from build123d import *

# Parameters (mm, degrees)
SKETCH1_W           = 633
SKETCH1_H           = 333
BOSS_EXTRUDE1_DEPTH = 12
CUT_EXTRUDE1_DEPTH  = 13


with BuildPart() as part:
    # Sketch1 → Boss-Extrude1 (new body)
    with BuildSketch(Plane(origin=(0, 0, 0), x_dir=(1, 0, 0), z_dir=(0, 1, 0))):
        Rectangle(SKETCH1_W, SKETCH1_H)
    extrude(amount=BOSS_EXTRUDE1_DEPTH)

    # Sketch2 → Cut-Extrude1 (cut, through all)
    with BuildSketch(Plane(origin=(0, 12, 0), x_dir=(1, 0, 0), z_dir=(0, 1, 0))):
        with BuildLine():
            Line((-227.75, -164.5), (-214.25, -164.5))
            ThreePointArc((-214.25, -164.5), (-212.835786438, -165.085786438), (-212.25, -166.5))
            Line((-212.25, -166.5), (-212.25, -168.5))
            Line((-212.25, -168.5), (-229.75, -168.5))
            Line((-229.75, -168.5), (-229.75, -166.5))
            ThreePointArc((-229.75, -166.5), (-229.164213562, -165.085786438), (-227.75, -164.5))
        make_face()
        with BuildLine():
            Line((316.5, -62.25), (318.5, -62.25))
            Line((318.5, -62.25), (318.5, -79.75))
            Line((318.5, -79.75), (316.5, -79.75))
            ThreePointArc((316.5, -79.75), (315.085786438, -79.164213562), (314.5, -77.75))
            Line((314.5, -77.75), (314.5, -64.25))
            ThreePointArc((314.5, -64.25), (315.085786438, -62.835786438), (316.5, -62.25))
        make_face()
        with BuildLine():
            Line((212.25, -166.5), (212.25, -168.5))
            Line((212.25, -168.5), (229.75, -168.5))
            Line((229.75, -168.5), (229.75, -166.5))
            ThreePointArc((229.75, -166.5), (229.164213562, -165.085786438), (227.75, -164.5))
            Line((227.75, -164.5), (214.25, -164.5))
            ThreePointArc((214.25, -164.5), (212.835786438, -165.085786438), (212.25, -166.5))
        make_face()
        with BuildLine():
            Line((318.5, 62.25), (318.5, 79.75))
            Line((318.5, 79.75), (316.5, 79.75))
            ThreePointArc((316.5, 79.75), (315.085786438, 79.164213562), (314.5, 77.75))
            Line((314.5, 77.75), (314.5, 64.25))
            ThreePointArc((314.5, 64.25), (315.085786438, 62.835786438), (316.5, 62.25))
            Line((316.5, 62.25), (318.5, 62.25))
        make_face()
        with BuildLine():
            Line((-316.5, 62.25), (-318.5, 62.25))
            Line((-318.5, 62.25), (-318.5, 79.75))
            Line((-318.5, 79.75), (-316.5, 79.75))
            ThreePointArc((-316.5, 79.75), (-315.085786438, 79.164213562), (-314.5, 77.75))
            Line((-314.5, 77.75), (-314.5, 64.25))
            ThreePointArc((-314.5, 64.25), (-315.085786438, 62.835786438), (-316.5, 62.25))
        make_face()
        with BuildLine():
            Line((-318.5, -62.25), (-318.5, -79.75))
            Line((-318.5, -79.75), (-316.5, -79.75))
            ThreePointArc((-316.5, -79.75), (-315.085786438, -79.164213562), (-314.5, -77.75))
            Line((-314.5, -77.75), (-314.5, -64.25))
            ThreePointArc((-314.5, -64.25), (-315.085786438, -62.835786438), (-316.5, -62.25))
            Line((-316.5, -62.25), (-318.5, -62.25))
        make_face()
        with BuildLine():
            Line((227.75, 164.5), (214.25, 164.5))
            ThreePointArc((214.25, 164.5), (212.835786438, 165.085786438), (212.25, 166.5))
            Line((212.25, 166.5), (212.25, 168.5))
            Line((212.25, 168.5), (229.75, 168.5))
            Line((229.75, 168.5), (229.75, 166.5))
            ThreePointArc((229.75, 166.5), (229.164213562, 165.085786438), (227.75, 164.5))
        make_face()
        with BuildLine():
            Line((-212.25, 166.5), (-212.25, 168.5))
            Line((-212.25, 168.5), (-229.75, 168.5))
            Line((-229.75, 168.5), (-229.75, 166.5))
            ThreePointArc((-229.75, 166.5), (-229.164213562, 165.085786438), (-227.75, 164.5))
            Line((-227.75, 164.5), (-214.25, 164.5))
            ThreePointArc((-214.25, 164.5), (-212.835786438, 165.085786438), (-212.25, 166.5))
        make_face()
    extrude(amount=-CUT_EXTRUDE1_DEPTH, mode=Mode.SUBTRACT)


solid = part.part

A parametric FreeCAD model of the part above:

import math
import FreeCAD as App
import Part
import Sketcher
from FreeCAD import Vector

doc = App.newDocument("Part")
body = doc.addObject("PartDesign::Body", "Body")

# Sketch on XZ plane
sketch1 = body.newObject("Sketcher::SketchObject", "Sketch")
sketch1.AttachmentSupport = (doc.getObject("XZ_Plane"), [""])
sketch1.MapMode = "FlatFace"
sketch1.addGeometry([
    Part.LineSegment(Vector(-316, -166, 0), Vector(-316, 166, 0)),
    Part.LineSegment(Vector(-316, 166, 0), Vector(316, 166, 0)),
    Part.LineSegment(Vector(316, 166, 0), Vector(316, -166, 0)),
    Part.LineSegment(Vector(316, -166, 0), Vector(-316, -166, 0)),
], False)
sketch1.addConstraint([
    Sketcher.Constraint("Coincident", 0, 2, 1, 1),
    Sketcher.Constraint("Coincident", 1, 2, 2, 1),
    Sketcher.Constraint("Coincident", 2, 2, 3, 1),
    Sketcher.Constraint("Coincident", 3, 2, 0, 1),
    Sketcher.Constraint("Vertical", 0),
    Sketcher.Constraint("Horizontal", 1),
    Sketcher.Constraint("Vertical", 2),
    Sketcher.Constraint("Horizontal", 3),
    Sketcher.Constraint("Symmetric", 0, 2, 2, 2, -1, 1),
    Sketcher.Constraint("DistanceX", 1, 1, 1, 2, 633.0),
    Sketcher.Constraint("DistanceY", 0, 1, 0, 2, 333.0),
])
pad1 = body.newObject("PartDesign::Pad", "Pad")
pad1.Profile = sketch1
pad1.Length = 12
pad1.Reversed = True

# Sketch on XZ plane
sketch2 = body.newObject("Sketcher::SketchObject", "Sketch001")
sketch2.AttachmentSupport = (doc.getObject("XZ_Plane"), [""])
sketch2.MapMode = "FlatFace"
sketch2.AttachmentOffset = App.Placement(Vector(0, 0, -12), App.Rotation())
sketch2.addGeometry([
    Part.LineSegment(Vector(-214.2, 164.5, 0), Vector(-227.8, 164.5, 0)),  # 0
    Part.ArcOfCircle(Part.Circle(Vector(-227.7, 166.5, 0), Vector(0, 0, 1), 2), math.radians(-180), math.radians(-90)),  # 1
    Part.LineSegment(Vector(-229.8, 166.5, 0), Vector(-229.8, 168.5, 0)),  # 2
    Part.LineSegment(Vector(-229.8, 168.5, 0), Vector(-212.2, 168.5, 0)),  # 3
    Part.LineSegment(Vector(-212.2, 168.5, 0), Vector(-212.2, 166.5, 0)),  # 4
    Part.ArcOfCircle(Part.Circle(Vector(-214.3, 166.5, 0), Vector(0, 0, 1), 2), math.radians(-90), math.radians(0)),  # 5
    Part.LineSegment(Vector(318.5, 62.2, 0), Vector(316.5, 62.2, 0)),  # 6
    Part.ArcOfCircle(Part.Circle(Vector(316.5, 64.3, 0), Vector(0, 0, 1), 2), math.radians(-180), math.radians(-90)),  # 7
    Part.LineSegment(Vector(314.5, 64.2, 0), Vector(314.5, 77.8, 0)),  # 8
    Part.ArcOfCircle(Part.Circle(Vector(316.5, 77.7, 0), Vector(0, 0, 1), 2), math.radians(90), math.radians(180)),  # 9
    Part.LineSegment(Vector(316.5, 79.8, 0), Vector(318.5, 79.8, 0)),  # 10
    Part.LineSegment(Vector(318.5, 79.8, 0), Vector(318.5, 62.2, 0)),  # 11
    Part.LineSegment(Vector(212.2, 166.5, 0), Vector(212.2, 168.5, 0)),  # 12
    Part.LineSegment(Vector(212.2, 168.5, 0), Vector(229.8, 168.5, 0)),  # 13
    Part.LineSegment(Vector(229.8, 168.5, 0), Vector(229.8, 166.5, 0)),  # 14
    Part.ArcOfCircle(Part.Circle(Vector(227.7, 166.5, 0), Vector(0, 0, 1), 2), math.radians(-90), math.radians(0)),  # 15
    Part.LineSegment(Vector(227.8, 164.5, 0), Vector(214.2, 164.5, 0)),  # 16
    Part.ArcOfCircle(Part.Circle(Vector(214.3, 166.5, 0), Vector(0, 0, 1), 2), math.radians(-180), math.radians(-90)),  # 17
    Part.LineSegment(Vector(318.5, -62.2, 0), Vector(318.5, -79.8, 0)),  # 18
    Part.LineSegment(Vector(318.5, -79.8, 0), Vector(316.5, -79.8, 0)),  # 19
    Part.ArcOfCircle(Part.Circle(Vector(316.5, -77.7, 0), Vector(0, 0, 1), 2), math.radians(-180), math.radians(-90)),  # 20
    Part.LineSegment(Vector(314.5, -77.8, 0), Vector(314.5, -64.2, 0)),  # 21
    Part.ArcOfCircle(Part.Circle(Vector(316.5, -64.3, 0), Vector(0, 0, 1), 2), math.radians(90), math.radians(180)),  # 22
    Part.LineSegment(Vector(316.5, -62.2, 0), Vector(318.5, -62.2, 0)),  # 23
    Part.LineSegment(Vector(-318.5, -62.2, 0), Vector(-316.5, -62.2, 0)),  # 24
    Part.ArcOfCircle(Part.Circle(Vector(-316.5, -64.3, 0), Vector(0, 0, 1), 2), math.radians(0), math.radians(90)),  # 25
    Part.LineSegment(Vector(-314.5, -64.2, 0), Vector(-314.5, -77.8, 0)),  # 26
    Part.ArcOfCircle(Part.Circle(Vector(-316.5, -77.7, 0), Vector(0, 0, 1), 2), math.radians(-90), math.radians(0)),  # 27
    Part.LineSegment(Vector(-316.5, -79.8, 0), Vector(-318.5, -79.8, 0)),  # 28
    Part.LineSegment(Vector(-318.5, -79.8, 0), Vector(-318.5, -62.2, 0)),  # 29
    Part.LineSegment(Vector(-318.5, 62.2, 0), Vector(-318.5, 79.8, 0)),  # 30
    Part.LineSegment(Vector(-318.5, 79.8, 0), Vector(-316.5, 79.8, 0)),  # 31
    Part.ArcOfCircle(Part.Circle(Vector(-316.5, 77.7, 0), Vector(0, 0, 1), 2), math.radians(0), math.radians(90)),  # 32
    Part.LineSegment(Vector(-314.5, 77.8, 0), Vector(-314.5, 64.2, 0)),  # 33
    Part.ArcOfCircle(Part.Circle(Vector(-316.5, 64.3, 0), Vector(0, 0, 1), 2), math.radians(-90), math.radians(0)),  # 34
    Part.LineSegment(Vector(-316.5, 62.2, 0), Vector(-318.5, 62.2, 0)),  # 35
    Part.LineSegment(Vector(214.2, -164.5, 0), Vector(227.8, -164.5, 0)),  # 36
    Part.ArcOfCircle(Part.Circle(Vector(227.7, -166.5, 0), Vector(0, 0, 1), 2), math.radians(0), math.radians(90)),  # 37
    Part.LineSegment(Vector(229.8, -166.5, 0), Vector(229.8, -168.5, 0)),  # 38
    Part.LineSegment(Vector(229.8, -168.5, 0), Vector(212.2, -168.5, 0)),  # 39
    Part.LineSegment(Vector(212.2, -168.5, 0), Vector(212.2, -166.5, 0)),  # 40
    Part.ArcOfCircle(Part.Circle(Vector(214.3, -166.5, 0), Vector(0, 0, 1), 2), math.radians(90), math.radians(180)),  # 41
    Part.LineSegment(Vector(-212.2, -166.5, 0), Vector(-212.2, -168.5, 0)),  # 42
    Part.LineSegment(Vector(-212.2, -168.5, 0), Vector(-229.8, -168.5, 0)),  # 43
    Part.LineSegment(Vector(-229.8, -168.5, 0), Vector(-229.8, -166.5, 0)),  # 44
    Part.ArcOfCircle(Part.Circle(Vector(-227.7, -166.5, 0), Vector(0, 0, 1), 2), math.radians(90), math.radians(180)),  # 45
    Part.LineSegment(Vector(-227.8, -164.5, 0), Vector(-214.2, -164.5, 0)),  # 46
    Part.ArcOfCircle(Part.Circle(Vector(-214.3, -166.5, 0), Vector(0, 0, 1), 2), math.radians(0), math.radians(90)),  # 47
], False)
sketch2.addConstraint([
    Sketcher.Constraint("Tangent", 0, 2, 1, 2),
    Sketcher.Constraint("Tangent", 1, 1, 2, 1),
    Sketcher.Constraint("Coincident", 2, 2, 3, 1),
    Sketcher.Constraint("Coincident", 3, 2, 4, 1),
    Sketcher.Constraint("Tangent", 4, 2, 5, 2),
    Sketcher.Constraint("Tangent", 5, 1, 0, 1),
    Sketcher.Constraint("Tangent", 6, 2, 7, 2),
    Sketcher.Constraint("Tangent", 7, 1, 8, 1),
    Sketcher.Constraint("Tangent", 8, 2, 9, 2),
    Sketcher.Constraint("Tangent", 9, 1, 10, 1),
    Sketcher.Constraint("Coincident", 10, 2, 11, 1),
    Sketcher.Constraint("Coincident", 11, 2, 6, 1),
    Sketcher.Constraint("Coincident", 12, 2, 13, 1),
    Sketcher.Constraint("Coincident", 13, 2, 14, 1),
    Sketcher.Constraint("Tangent", 14, 2, 15, 2),
    Sketcher.Constraint("Tangent", 15, 1, 16, 1),
    Sketcher.Constraint("Tangent", 16, 2, 17, 2),
    Sketcher.Constraint("Tangent", 17, 1, 12, 1),
    Sketcher.Constraint("Coincident", 18, 2, 19, 1),
    Sketcher.Constraint("Tangent", 19, 2, 20, 2),
    Sketcher.Constraint("Tangent", 20, 1, 21, 1),
    Sketcher.Constraint("Tangent", 21, 2, 22, 2),
    Sketcher.Constraint("Tangent", 22, 1, 23, 1),
    Sketcher.Constraint("Coincident", 23, 2, 18, 1),
    Sketcher.Constraint("Tangent", 24, 2, 25, 2),
    Sketcher.Constraint("Tangent", 25, 1, 26, 1),
    Sketcher.Constraint("Tangent", 26, 2, 27, 2),
    Sketcher.Constraint("Tangent", 27, 1, 28, 1),
    Sketcher.Constraint("Coincident", 28, 2, 29, 1),
    Sketcher.Constraint("Coincident", 29, 2, 24, 1),
    Sketcher.Constraint("Coincident", 30, 2, 31, 1),
    Sketcher.Constraint("Tangent", 31, 2, 32, 2),
    Sketcher.Constraint("Tangent", 32, 1, 33, 1),
    Sketcher.Constraint("Tangent", 33, 2, 34, 2),
    Sketcher.Constraint("Tangent", 34, 1, 35, 1),
    Sketcher.Constraint("Coincident", 35, 2, 30, 1),
    Sketcher.Constraint("Tangent", 36, 2, 37, 2),
    Sketcher.Constraint("Tangent", 37, 1, 38, 1),
    Sketcher.Constraint("Coincident", 38, 2, 39, 1),
    Sketcher.Constraint("Coincident", 39, 2, 40, 1),
    Sketcher.Constraint("Tangent", 40, 2, 41, 2),
    Sketcher.Constraint("Tangent", 41, 1, 36, 1),
    Sketcher.Constraint("Coincident", 42, 2, 43, 1),
    Sketcher.Constraint("Coincident", 43, 2, 44, 1),
    Sketcher.Constraint("Tangent", 44, 2, 45, 2),
    Sketcher.Constraint("Tangent", 45, 1, 46, 1),
    Sketcher.Constraint("Tangent", 46, 2, 47, 2),
    Sketcher.Constraint("Tangent", 47, 1, 42, 1),
    Sketcher.Constraint("Horizontal", 0),
    Sketcher.Constraint("Vertical", 2),
    Sketcher.Constraint("Horizontal", 3),
    Sketcher.Constraint("Vertical", 4),
    Sketcher.Constraint("Horizontal", 6),
    Sketcher.Constraint("Vertical", 8),
    Sketcher.Constraint("Horizontal", 10),
    Sketcher.Constraint("Vertical", 11),
    Sketcher.Constraint("Vertical", 12),
    Sketcher.Constraint("Horizontal", 13),
    Sketcher.Constraint("Vertical", 14),
    Sketcher.Constraint("Horizontal", 16),
    Sketcher.Constraint("Vertical", 18),
    Sketcher.Constraint("Horizontal", 19),
    Sketcher.Constraint("Vertical", 21),
    Sketcher.Constraint("Horizontal", 23),
    Sketcher.Constraint("Horizontal", 24),
    Sketcher.Constraint("Vertical", 26),
    Sketcher.Constraint("Horizontal", 28),
    Sketcher.Constraint("Vertical", 29),
    Sketcher.Constraint("Vertical", 30),
    Sketcher.Constraint("Horizontal", 31),
    Sketcher.Constraint("Vertical", 33),
    Sketcher.Constraint("Horizontal", 35),
    Sketcher.Constraint("Horizontal", 36),
    Sketcher.Constraint("Vertical", 38),
    Sketcher.Constraint("Horizontal", 39),
    Sketcher.Constraint("Vertical", 40),
    Sketcher.Constraint("Vertical", 42),
    Sketcher.Constraint("Horizontal", 43),
    Sketcher.Constraint("Vertical", 44),
    Sketcher.Constraint("Horizontal", 46),
    Sketcher.Constraint("Equal", 1, 5),
    Sketcher.Constraint("Equal", 5, 7),
    Sketcher.Constraint("Equal", 7, 9),
    Sketcher.Constraint("Equal", 9, 15),
    Sketcher.Constraint("Equal", 15, 17),
    Sketcher.Constraint("Equal", 17, 20),
    Sketcher.Constraint("Equal", 20, 22),
    Sketcher.Constraint("Equal", 22, 25),
    Sketcher.Constraint("Equal", 25, 27),
    Sketcher.Constraint("Equal", 27, 32),
    Sketcher.Constraint("Equal", 32, 34),
    Sketcher.Constraint("Equal", 34, 37),
    Sketcher.Constraint("Equal", 37, 41),
    Sketcher.Constraint("Equal", 41, 45),
    Sketcher.Constraint("Equal", 45, 47),
    Sketcher.Constraint("Symmetric", 7, 3, 25, 3, -1, 1),
    Sketcher.Constraint("Symmetric", 20, 3, 32, 3, -1, 1),
    Sketcher.Constraint("Symmetric", 1, 3, 37, 3, -1, 1),
    Sketcher.Constraint("Symmetric", 15, 3, 45, 3, -1, 1),
    Sketcher.Constraint("Symmetric", 10, 2, 28, 2, -1, 1),
    Sketcher.Constraint("Symmetric", 23, 2, 35, 2, -1, 1),
    Sketcher.Constraint("Symmetric", 3, 2, 39, 2, -1, 1),
    Sketcher.Constraint("Symmetric", 12, 2, 42, 2, -1, 1),
    Sketcher.Constraint("Symmetric", 1, 3, 15, 3, -2),
    Sketcher.Constraint("Symmetric", 22, 3, 25, 3, -2),
    Sketcher.Constraint("Symmetric", 3, 2, 12, 2, -2),
    Sketcher.Constraint("Symmetric", 18, 2, 28, 2, -2),
    Sketcher.Constraint("Equal", 35, 2),
    Sketcher.Constraint("Equal", 46, 8),
    Sketcher.Constraint("Radius", 1, 2.0),
    Sketcher.Constraint("DistanceX", 6, 2, 6, 1, 2.0),
    Sketcher.Constraint("DistanceX", 0, 2, 0, 1, 13.5),
    Sketcher.Constraint("DistanceY", -1, 1, 1, 3, 166.5),
    Sketcher.Constraint("DistanceX", -1, 1, 7, 3, 316.5),
    Sketcher.Constraint("DistanceX", 1, 3, -1, 1, 227.75),
    Sketcher.Constraint("DistanceY", -1, 1, 7, 3, 64.25),
])
pocket1 = body.newObject("PartDesign::Pocket", "Pocket")
pocket1.Profile = sketch2
pocket1.Type = "ThroughAll"
pocket1.Reversed = True

doc.recompute()
